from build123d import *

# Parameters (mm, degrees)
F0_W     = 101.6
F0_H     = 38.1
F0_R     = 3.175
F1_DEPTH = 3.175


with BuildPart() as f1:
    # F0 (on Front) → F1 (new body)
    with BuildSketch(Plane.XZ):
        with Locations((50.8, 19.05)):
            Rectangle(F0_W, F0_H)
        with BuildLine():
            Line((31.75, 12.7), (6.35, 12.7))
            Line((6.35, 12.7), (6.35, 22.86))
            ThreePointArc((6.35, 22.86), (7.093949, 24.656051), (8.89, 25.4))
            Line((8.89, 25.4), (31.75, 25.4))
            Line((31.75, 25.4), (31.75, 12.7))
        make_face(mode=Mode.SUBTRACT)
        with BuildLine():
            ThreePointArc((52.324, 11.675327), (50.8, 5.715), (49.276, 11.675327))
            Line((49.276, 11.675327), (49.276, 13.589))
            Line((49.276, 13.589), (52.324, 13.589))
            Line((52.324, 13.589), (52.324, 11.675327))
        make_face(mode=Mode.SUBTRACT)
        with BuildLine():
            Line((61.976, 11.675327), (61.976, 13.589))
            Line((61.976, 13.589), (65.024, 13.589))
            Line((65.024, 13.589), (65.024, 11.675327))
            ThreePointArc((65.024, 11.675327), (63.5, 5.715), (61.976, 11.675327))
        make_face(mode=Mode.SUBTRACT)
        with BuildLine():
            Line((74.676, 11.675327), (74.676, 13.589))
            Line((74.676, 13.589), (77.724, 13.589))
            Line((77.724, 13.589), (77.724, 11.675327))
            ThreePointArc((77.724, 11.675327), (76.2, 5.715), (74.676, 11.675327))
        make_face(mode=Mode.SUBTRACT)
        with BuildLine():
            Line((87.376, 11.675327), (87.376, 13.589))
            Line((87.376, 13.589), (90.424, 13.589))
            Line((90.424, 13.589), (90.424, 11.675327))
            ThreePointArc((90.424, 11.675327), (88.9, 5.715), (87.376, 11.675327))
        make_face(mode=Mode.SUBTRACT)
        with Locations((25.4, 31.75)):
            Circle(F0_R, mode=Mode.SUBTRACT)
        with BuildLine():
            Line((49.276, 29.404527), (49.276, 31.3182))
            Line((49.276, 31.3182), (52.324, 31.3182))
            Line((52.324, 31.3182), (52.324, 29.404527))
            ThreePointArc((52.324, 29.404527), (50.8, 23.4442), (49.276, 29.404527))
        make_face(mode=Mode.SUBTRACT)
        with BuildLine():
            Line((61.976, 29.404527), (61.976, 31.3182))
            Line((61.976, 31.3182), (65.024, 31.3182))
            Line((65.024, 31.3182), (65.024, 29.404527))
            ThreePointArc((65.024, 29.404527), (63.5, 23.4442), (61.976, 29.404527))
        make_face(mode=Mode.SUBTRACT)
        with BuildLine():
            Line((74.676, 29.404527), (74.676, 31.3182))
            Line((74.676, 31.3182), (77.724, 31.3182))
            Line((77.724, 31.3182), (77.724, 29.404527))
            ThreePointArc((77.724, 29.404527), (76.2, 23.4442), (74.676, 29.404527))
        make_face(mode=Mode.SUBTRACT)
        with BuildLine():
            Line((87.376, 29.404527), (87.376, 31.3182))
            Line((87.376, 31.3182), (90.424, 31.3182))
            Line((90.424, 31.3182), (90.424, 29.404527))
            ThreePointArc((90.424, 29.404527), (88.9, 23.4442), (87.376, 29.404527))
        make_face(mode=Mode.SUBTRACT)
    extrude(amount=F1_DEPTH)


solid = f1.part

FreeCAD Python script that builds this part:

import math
import FreeCAD as App
import Part
import Sketcher

V = App.Vector
Q = App.Units.Quantity

doc = App.newDocument("Part")
body = doc.addObject("PartDesign::Body", "Body")

# Sketch on XZ plane
sketch1 = doc.addObject("Sketcher::SketchObject", "Sketch")
body.addObject(sketch1)
sketch1.AttachmentSupport = (doc.XZ_Plane, [""])
sketch1.MapMode = "FlatFace"
sketch1.addGeometry(Part.LineSegment(V(0, 38.1, 0), V(0, 0, 0)), False)
sketch1.addGeometry(Part.LineSegment(V(0, 0, 0), V(101.6, 0, 0)), False)
sketch1.addGeometry(Part.LineSegment(V(101.6, 0, 0), V(101.6, 38.1, 0)), False)
sketch1.addGeometry(Part.LineSegment(V(101.6, 38.1, 0), V(0, 38.1, 0)), False)
sketch1.addGeometry(Part.LineSegment(V(31.75, 25.4, 0), V(31.75, 12.7, 0)), False)
sketch1.addGeometry(Part.LineSegment(V(31.75, 12.7, 0), V(6.35, 12.7, 0)), False)
sketch1.addGeometry(Part.LineSegment(V(6.35, 12.7, 0), V(6.35, 22.86, 0)), False)
sketch1.addGeometry(Part.ArcOfCircle(Part.Circle(V(8.890001, 22.859999, 0), V(0, 0, 1), 2.540001), math.radians(90.000017), math.radians(179.999983)), False)
sketch1.addGeometry(Part.LineSegment(V(8.89, 25.4, 0), V(31.75, 25.4, 0)), False)
sketch1.addGeometry(Part.LineSegment(V(52.324, 13.589, 0), V(52.324, 11.675327, 0)), False)
sketch1.addGeometry(Part.ArcOfCircle(Part.Circle(V(50.8, 8.89, 0), V(0, 0, 1), 3.175), math.radians(118.685404), math.radians(421.314596)), False)
sketch1.addGeometry(Part.LineSegment(V(49.276, 11.675327, 0), V(49.276, 13.589, 0)), False)
sketch1.addGeometry(Part.LineSegment(V(49.276, 13.589, 0), V(52.324, 13.589, 0)), False)
sketch1.addGeometry(Part.ArcOfCircle(Part.Circle(V(63.5, 8.89, 0), V(0, 0, 1), 3.175), math.radians(118.685404), math.radians(421.314596)), False)
sketch1.addGeometry(Part.LineSegment(V(61.976, 11.675327, 0), V(61.976, 13.589, 0)), False)
sketch1.addGeometry(Part.LineSegment(V(61.976, 13.589, 0), V(65.024, 13.589, 0)), False)
sketch1.addGeometry(Part.LineSegment(V(65.024, 13.589, 0), V(65.024, 11.675327, 0)), False)
sketch1.addGeometry(Part.ArcOfCircle(Part.Circle(V(76.2, 8.89, 0), V(0, 0, 1), 3.175), math.radians(118.685404), math.radians(421.314596)), False)
sketch1.addGeometry(Part.LineSegment(V(74.676, 11.675327, 0), V(74.676, 13.589, 0)), False)
sketch1.addGeometry(Part.LineSegment(V(74.676, 13.589, 0), V(77.724, 13.589, 0)), False)
sketch1.addGeometry(Part.LineSegment(V(77.724, 13.589, 0), V(77.724, 11.675327, 0)), False)
sketch1.addGeometry(Part.ArcOfCircle(Part.Circle(V(88.9, 8.89, 0), V(0, 0, 1), 3.175), math.radians(118.685404), math.radians(421.314596)), False)
sketch1.addGeometry(Part.LineSegment(V(87.376, 11.675327, 0), V(87.376, 13.589, 0)), False)
sketch1.addGeometry(Part.LineSegment(V(87.376, 13.589, 0), V(90.424, 13.589, 0)), False)
sketch1.addGeometry(Part.LineSegment(V(90.424, 13.589, 0), V(90.424, 11.675327, 0)), False)
sketch1.addGeometry(Part.Circle(V(25.4, 31.75, 0), V(0, 0, 1), 3.175), False)
sketch1.addGeometry(Part.ArcOfCircle(Part.Circle(V(50.8, 26.6192, 0), V(0, 0, 1), 3.175), math.radians(118.685404), math.radians(421.314596)), False)
sketch1.addGeometry(Part.LineSegment(V(49.276, 29.404527, 0), V(49.276, 31.3182, 0)), False)
sketch1.addGeometry(Part.LineSegment(V(49.276, 31.3182, 0), V(52.324, 31.3182, 0)), False)
sketch1.addGeometry(Part.LineSegment(V(52.324, 31.3182, 0), V(52.324, 29.404527, 0)), False)
sketch1.addGeometry(Part.ArcOfCircle(Part.Circle(V(63.5, 26.6192, 0), V(0, 0, 1), 3.175), math.radians(118.685404), math.radians(421.314596)), False)
sketch1.addGeometry(Part.LineSegment(V(61.976, 29.404527, 0), V(61.976, 31.3182, 0)), False)
sketch1.addGeometry(Part.LineSegment(V(61.976, 31.3182, 0), V(65.024, 31.3182, 0)), False)
sketch1.addGeometry(Part.LineSegment(V(65.024, 31.3182, 0), V(65.024, 29.404527, 0)), False)
sketch1.addGeometry(Part.ArcOfCircle(Part.Circle(V(76.2, 26.6192, 0), V(0, 0, 1), 3.175), math.radians(118.685404), math.radians(421.314596)), False)
sketch1.addGeometry(Part.LineSegment(V(74.676, 29.404527, 0), V(74.676, 31.3182, 0)), False)
sketch1.addGeometry(Part.LineSegment(V(74.676, 31.3182, 0), V(77.724, 31.3182, 0)), False)
sketch1.addGeometry(Part.LineSegment(V(77.724, 31.3182, 0), V(77.724, 29.404527, 0)), False)
sketch1.addGeometry(Part.ArcOfCircle(Part.Circle(V(88.9, 26.6192, 0), V(0, 0, 1), 3.175), math.radians(118.685404), math.radians(421.314596)), False)
sketch1.addGeometry(Part.LineSegment(V(87.376, 29.404527, 0), V(87.376, 31.3182, 0)), False)
sketch1.addGeometry(Part.LineSegment(V(87.376, 31.3182, 0), V(90.424, 31.3182, 0)), False)
sketch1.addGeometry(Part.LineSegment(V(90.424, 31.3182, 0), V(90.424, 29.404527, 0)), False)
sketch1.addConstraint(Sketcher.Constraint("Coincident", 0, 2, 1, 1))
sketch1.addConstraint(Sketcher.Constraint("Coincident", 1, 2, 2, 1))
sketch1.addConstraint(Sketcher.Constraint("Coincident", 2, 2, 3, 1))
sketch1.addConstraint(Sketcher.Constraint("Coincident", 3, 2, 0, 1))
sketch1.addConstraint(Sketcher.Constraint("Coincident", 4, 2, 5, 1))
sketch1.addConstraint(Sketcher.Constraint("Coincident", 5, 2, 6, 1))
sketch1.addConstraint(Sketcher.Constraint("Tangent", 6, 2, 7, 2))
sketch1.addConstraint(Sketcher.Constraint("Tangent", 7, 1, 8, 1))
sketch1.addConstraint(Sketcher.Constraint("Coincident", 8, 2, 4, 1))
sketch1.addConstraint(Sketcher.Constraint("Coincident", 9, 2, 10, 2))
sketch1.addConstraint(Sketcher.Constraint("Coincident", 10, 1, 11, 1))
sketch1.addConstraint(Sketcher.Constraint("Coincident", 11, 2, 12, 1))
sketch1.addConstraint(Sketcher.Constraint("Coincident", 12, 2, 9, 1))
sketch1.addConstraint(Sketcher.Constraint("Coincident", 13, 1, 14, 1))
sketch1.addConstraint(Sketcher.Constraint("Coincident", 14, 2, 15, 1))
sketch1.addConstraint(Sketcher.Constraint("Coincident", 15, 2, 16, 1))
sketch1.addConstraint(Sketcher.Constraint("Coincident", 16, 2, 13, 2))
sketch1.addConstraint(Sketcher.Constraint("Coincident", 17, 1, 18, 1))
sketch1.addConstraint(Sketcher.Constraint("Coincident", 18, 2, 19, 1))
sketch1.addConstraint(Sketcher.Constraint("Coincident", 19, 2, 20, 1))
sketch1.addConstraint(Sketcher.Constraint("Coincident", 20, 2, 17, 2))
sketch1.addConstraint(Sketcher.Constraint("Coincident", 21, 1, 22, 1))
sketch1.addConstraint(Sketcher.Constraint("Coincident", 22, 2, 23, 1))
sketch1.addConstraint(Sketcher.Constraint("Coincident", 23, 2, 24, 1))
sketch1.addConstraint(Sketcher.Constraint("Coincident", 24, 2, 21, 2))
sketch1.addConstraint(Sketcher.Constraint("Coincident", 26, 1, 27, 1))
sketch1.addConstraint(Sketcher.Constraint("Coincident", 27, 2, 28, 1))
sketch1.addConstraint(Sketcher.Constraint("Coincident", 28, 2, 29, 1))
sketch1.addConstraint(Sketcher.Constraint("Coincident", 29, 2, 26, 2))
sketch1.addConstraint(Sketcher.Constraint("Coincident", 30, 1, 31, 1))
sketch1.addConstraint(Sketcher.Constraint("Coincident", 31, 2, 32, 1))
sketch1.addConstraint(Sketcher.Constraint("Coincident", 32, 2, 33, 1))
sketch1.addConstraint(Sketcher.Constraint("Coincident", 33, 2, 30, 2))
sketch1.addConstraint(Sketcher.Constraint("Coincident", 34, 1, 35, 1))
sketch1.addConstraint(Sketcher.Constraint("Coincident", 35, 2, 36, 1))
sketch1.addConstraint(Sketcher.Constraint("Coincident", 36, 2, 37, 1))
sketch1.addConstraint(Sketcher.Constraint("Coincident", 37, 2, 34, 2))
sketch1.addConstraint(Sketcher.Constraint("Coincident", 38, 1, 39, 1))
sketch1.addConstraint(Sketcher.Constraint("Coincident", 39, 2, 40, 1))
sketch1.addConstraint(Sketcher.Constraint("Coincident", 40, 2, 41, 1))
sketch1.addConstraint(Sketcher.Constraint("Coincident", 41, 2, 38, 2))
sketch1.addConstraint(Sketcher.Constraint("Vertical", 0))
sketch1.addConstraint(Sketcher.Constraint("Horizontal", 1))
sketch1.addConstraint(Sketcher.Constraint("Vertical", 2))
sketch1.addConstraint(Sketcher.Constraint("Horizontal", 3))
sketch1.addConstraint(Sketcher.Constraint("Vertical", 4))
sketch1.addConstraint(Sketcher.Constraint("Horizontal", 5))
sketch1.addConstraint(Sketcher.Constraint("Vertical", 6))
sketch1.addConstraint(Sketcher.Constraint("Horizontal", 8))
sketch1.addConstraint(Sketcher.Constraint("Vertical", 9))
sketch1.addConstraint(Sketcher.Constraint("Vertical", 11))
sketch1.addConstraint(Sketcher.Constraint("Horizontal", 12))
sketch1.addConstraint(Sketcher.Constraint("Vertical", 14))
sketch1.addConstraint(Sketcher.Constraint("Horizontal", 15))
sketch1.addConstraint(Sketcher.Constraint("Vertical", 16))
sketch1.addConstraint(Sketcher.Constraint("Vertical", 18))
sketch1.addConstraint(Sketcher.Constraint("Horizontal", 19))
sketch1.addConstraint(Sketcher.Constraint("Vertical", 20))
sketch1.addConstraint(Sketcher.Constraint("Vertical", 22))
sketch1.addConstraint(Sketcher.Constraint("Horizontal", 23))
sketch1.addConstraint(Sketcher.Constraint("Vertical", 24))
sketch1.addConstraint(Sketcher.Constraint("Vertical", 27))
sketch1.addConstraint(Sketcher.Constraint("Horizontal", 28))
sketch1.addConstraint(Sketcher.Constraint("Vertical", 29))
sketch1.addConstraint(Sketcher.Constraint("Vertical", 31))
sketch1.addConstraint(Sketcher.Constraint("Horizontal", 32))
sketch1.addConstraint(Sketcher.Constraint("Vertical", 33))
sketch1.addConstraint(Sketcher.Constraint("Vertical", 35))
sketch1.addConstraint(Sketcher.Constraint("Horizontal", 36))
sketch1.addConstraint(Sketcher.Constraint("Vertical", 37))
sketch1.addConstraint(Sketcher.Constraint("Vertical", 39))
sketch1.addConstraint(Sketcher.Constraint("Horizontal", 40))
sketch1.addConstraint(Sketcher.Constraint("Vertical", 41))
sketch1.addConstraint(Sketcher.Constraint("Coincident", 0, 2, -1, 1))
sketch1.addConstraint(Sketcher.Constraint("Equal", 10, 13))
sketch1.addConstraint(Sketcher.Constraint("Equal", 13, 17))
sketch1.addConstraint(Sketcher.Constraint("Equal", 17, 21))
sketch1.addConstraint(Sketcher.Constraint("Equal", 21, 25))
sketch1.addConstraint(Sketcher.Constraint("Equal", 25, 26))
sketch1.addConstraint(Sketcher.Constraint("Equal", 26, 30))
sketch1.addConstraint(Sketcher.Constraint("Equal", 30, 34))
sketch1.addConstraint(Sketcher.Constraint("Equal", 34, 38))
sketch1.addConstraint(Sketcher.Constraint("Horizontal", 10, 3, 13, 3))
sketch1.addConstraint(Sketcher.Constraint("Horizontal", 13, 3, 17, 3))
sketch1.addConstraint(Sketcher.Constraint("Horizontal", 17, 3, 21, 3))
sketch1.addConstraint(Sketcher.Constraint("Horizontal", 26, 3, 30, 3))
sketch1.addConstraint(Sketcher.Constraint("Horizontal", 30, 3, 34, 3))
sketch1.addConstraint(Sketcher.Constraint("Horizontal", 34, 3, 38, 3))
sketch1.addConstraint(Sketcher.Constraint("Horizontal", 9, 2, 10, 1))
sketch1.addConstraint(Sketcher.Constraint("Horizontal", 10, 1, 13, 1))
sketch1.addConstraint(Sketcher.Constraint("Horizontal", 12, 2, 14, 2))
sketch1.addConstraint(Sketcher.Constraint("Horizontal", 13, 1, 16, 2))
sketch1.addConstraint(Sketcher.Constraint("Horizontal", 16, 2, 17, 1))
sketch1.addConstraint(Sketcher.Constraint("Horizontal", 15, 2, 18, 2))
sketch1.addConstraint(Sketcher.Constraint("Horizontal", 17, 1, 20, 2))
sketch1.addConstraint(Sketcher.Constraint("Horizontal", 20, 2, 21, 1))
sketch1.addConstraint(Sketcher.Constraint("Horizontal", 19, 2, 22, 2))
sketch1.addConstraint(Sketcher.Constraint("Horizontal", 21, 1, 24, 2))
sketch1.addConstraint(Sketcher.Constraint("Horizontal", 26, 1, 29, 2))
sketch1.addConstraint(Sketcher.Constraint("Horizontal", 29, 2, 30, 1))
sketch1.addConstraint(Sketcher.Constraint("Horizontal", 28, 2, 31, 2))
sketch1.addConstraint(Sketcher.Constraint("Horizontal", 30, 1, 33, 2))
sketch1.addConstraint(Sketcher.Constraint("Horizontal", 33, 2, 34, 1))
sketch1.addConstraint(Sketcher.Constraint("Horizontal", 32, 2, 35, 2))
sketch1.addConstraint(Sketcher.Constraint("Horizontal", 34, 1, 37, 2))
sketch1.addConstraint(Sketcher.Constraint("Horizontal", 37, 2, 38, 1))
sketch1.addConstraint(Sketcher.Constraint("Horizontal", 36, 2, 39, 2))
sketch1.addConstraint(Sketcher.Constraint("Horizontal", 38, 1, 41, 2))
sketch1.addConstraint(Sketcher.Constraint("Vertical", 10, 3, 26, 3))
sketch1.addConstraint(Sketcher.Constraint("Vertical", 13, 3, 30, 3))
sketch1.addConstraint(Sketcher.Constraint("Vertical", 17, 3, 34, 3))
sketch1.addConstraint(Sketcher.Constraint("Vertical", 21, 3, 38, 3))
sketch1.addConstraint(Sketcher.Constraint("Vertical", 11, 2, 26, 1))
sketch1.addConstraint(Sketcher.Constraint("Equal", 24, 27))
sketch1.addConstraint(Sketcher.Constraint("Radius", 7, Q("0.1 in")))
sketch1.addConstraint(Sketcher.Constraint("Diameter", 25, Q("0.25 in")))
sketch1.addConstraint(Sketcher.Constraint("DistanceX", 1, 1, 1, 2, Q("4 in")))
sketch1.addConstraint(Sketcher.Constraint("DistanceX", 5, 2, 5, 1, Q("1 in")))
sketch1.addConstraint(Sketcher.Constraint("DistanceY", 0, 2, 0, 1, Q("1.5 in")))
sketch1.addConstraint(Sketcher.Constraint("DistanceY", 4, 2, 4, 1, Q("0.5 in")))
sketch1.addConstraint(Sketcher.Constraint("DistanceX", -1, 1, 10, 3, Q("2 in")))
sketch1.addConstraint(Sketcher.Constraint("DistanceX", -1, 1, 17, 3, Q("3 in")))
sketch1.addConstraint(Sketcher.Constraint("DistanceX", -1, 1, 25, 3, Q("1 in")))
sketch1.addConstraint(Sketcher.Constraint("DistanceY", -1, 1, 7, 1, Q("1 in")))
sketch1.addConstraint(Sketcher.Constraint("DistanceX", 13, 3, 21, 3, Q("1 in")))
sketch1.addConstraint(Sketcher.Constraint("DistanceX", 12, 1, 12, 2, Q("0.12 in")))
sketch1.addConstraint(Sketcher.Constraint("DistanceX", -1, 1, 13, 3, Q("2.5 in")))
sketch1.addConstraint(Sketcher.Constraint("DistanceY", 10, 3, 25, 3, Q("0.9 in")))
sketch1.addConstraint(Sketcher.Constraint("DistanceX", -1, 1, 7, 3, Q("0.35 in")))
sketch1.addConstraint(Sketcher.Constraint("DistanceY", -1, 1, 10, 3, Q("0.35 in")))
sketch1.addConstraint(Sketcher.Constraint("DistanceY", -1, 1, 26, 3, Q("1.048 in")))
sketch1.addConstraint(Sketcher.Constraint("DistanceY", -1, 1, 11, 2, Q("0.535 in")))
pad1 = doc.addObject("PartDesign::Pad", "Pad")
body.addObject(pad1)
pad1.Profile = sketch1
pad1.Length = Q("0.125 in")

doc.recompute()
